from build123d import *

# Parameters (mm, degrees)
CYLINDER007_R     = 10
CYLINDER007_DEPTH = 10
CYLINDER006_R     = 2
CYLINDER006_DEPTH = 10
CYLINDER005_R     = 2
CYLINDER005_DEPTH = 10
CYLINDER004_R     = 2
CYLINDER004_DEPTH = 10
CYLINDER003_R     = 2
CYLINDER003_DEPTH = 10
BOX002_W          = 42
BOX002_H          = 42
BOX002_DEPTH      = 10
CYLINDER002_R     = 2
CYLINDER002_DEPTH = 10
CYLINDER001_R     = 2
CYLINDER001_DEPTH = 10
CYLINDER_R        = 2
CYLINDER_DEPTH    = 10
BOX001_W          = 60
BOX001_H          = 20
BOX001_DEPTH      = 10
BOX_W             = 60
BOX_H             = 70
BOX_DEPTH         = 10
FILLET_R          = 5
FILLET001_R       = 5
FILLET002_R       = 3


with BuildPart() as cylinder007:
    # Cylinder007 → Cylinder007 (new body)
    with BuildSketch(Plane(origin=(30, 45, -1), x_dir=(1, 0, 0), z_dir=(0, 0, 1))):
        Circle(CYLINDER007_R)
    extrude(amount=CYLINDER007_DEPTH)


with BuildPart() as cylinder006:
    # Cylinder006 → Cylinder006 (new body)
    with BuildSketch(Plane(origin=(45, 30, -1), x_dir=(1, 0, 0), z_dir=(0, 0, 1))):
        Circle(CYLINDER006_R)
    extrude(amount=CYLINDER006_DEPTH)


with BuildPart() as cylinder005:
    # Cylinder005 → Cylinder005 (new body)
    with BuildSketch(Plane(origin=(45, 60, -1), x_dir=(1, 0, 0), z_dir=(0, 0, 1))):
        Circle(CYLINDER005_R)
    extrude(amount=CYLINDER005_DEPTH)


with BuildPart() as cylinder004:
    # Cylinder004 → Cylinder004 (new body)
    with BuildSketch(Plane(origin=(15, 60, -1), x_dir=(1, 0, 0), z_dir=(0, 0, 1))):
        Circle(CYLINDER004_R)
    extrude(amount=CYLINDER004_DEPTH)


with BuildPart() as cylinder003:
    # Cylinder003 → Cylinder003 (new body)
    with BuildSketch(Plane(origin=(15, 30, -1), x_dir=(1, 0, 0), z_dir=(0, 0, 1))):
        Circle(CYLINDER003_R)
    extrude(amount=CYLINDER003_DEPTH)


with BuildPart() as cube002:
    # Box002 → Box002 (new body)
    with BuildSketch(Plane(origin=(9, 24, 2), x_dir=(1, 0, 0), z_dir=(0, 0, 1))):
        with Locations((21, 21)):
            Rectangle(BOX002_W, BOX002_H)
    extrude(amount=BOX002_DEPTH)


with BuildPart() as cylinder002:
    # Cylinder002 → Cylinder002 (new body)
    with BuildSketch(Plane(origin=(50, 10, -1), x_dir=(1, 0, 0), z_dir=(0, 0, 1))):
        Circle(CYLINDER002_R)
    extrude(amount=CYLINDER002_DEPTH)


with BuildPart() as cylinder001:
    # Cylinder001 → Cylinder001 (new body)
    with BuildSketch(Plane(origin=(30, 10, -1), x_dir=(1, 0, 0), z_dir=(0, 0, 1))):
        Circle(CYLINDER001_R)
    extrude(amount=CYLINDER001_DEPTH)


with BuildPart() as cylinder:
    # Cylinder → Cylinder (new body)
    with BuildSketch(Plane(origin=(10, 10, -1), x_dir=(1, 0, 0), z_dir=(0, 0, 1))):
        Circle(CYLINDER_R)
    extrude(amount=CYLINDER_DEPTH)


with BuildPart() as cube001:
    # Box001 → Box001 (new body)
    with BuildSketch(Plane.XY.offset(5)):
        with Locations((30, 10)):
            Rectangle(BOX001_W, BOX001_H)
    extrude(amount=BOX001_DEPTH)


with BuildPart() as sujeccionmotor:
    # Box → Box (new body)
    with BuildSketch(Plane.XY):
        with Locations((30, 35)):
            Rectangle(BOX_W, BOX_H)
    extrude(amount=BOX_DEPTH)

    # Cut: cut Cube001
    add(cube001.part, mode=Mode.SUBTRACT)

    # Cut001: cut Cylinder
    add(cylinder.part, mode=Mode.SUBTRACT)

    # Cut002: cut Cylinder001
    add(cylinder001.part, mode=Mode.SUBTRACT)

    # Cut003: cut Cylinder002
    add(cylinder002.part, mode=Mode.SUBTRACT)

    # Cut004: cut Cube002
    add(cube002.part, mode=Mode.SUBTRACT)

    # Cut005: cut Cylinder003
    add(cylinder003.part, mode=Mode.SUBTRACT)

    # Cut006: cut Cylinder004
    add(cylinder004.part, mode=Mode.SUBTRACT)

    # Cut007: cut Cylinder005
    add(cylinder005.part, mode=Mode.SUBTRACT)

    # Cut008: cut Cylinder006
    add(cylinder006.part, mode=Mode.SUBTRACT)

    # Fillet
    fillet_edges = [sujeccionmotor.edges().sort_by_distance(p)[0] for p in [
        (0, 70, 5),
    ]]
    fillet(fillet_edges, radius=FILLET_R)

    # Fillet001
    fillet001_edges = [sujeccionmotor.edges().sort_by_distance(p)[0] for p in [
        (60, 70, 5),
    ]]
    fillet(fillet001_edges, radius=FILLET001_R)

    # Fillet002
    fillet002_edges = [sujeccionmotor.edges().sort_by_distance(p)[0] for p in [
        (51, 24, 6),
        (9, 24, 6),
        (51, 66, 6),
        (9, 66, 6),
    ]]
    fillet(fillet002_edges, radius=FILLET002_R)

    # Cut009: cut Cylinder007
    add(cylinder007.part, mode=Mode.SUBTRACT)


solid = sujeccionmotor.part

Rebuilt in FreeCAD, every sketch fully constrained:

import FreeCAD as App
import Part
import Sketcher

V = App.Vector


def edges_at(feature, points):
    """Names of the edges that pass closest to the given points."""
    edges = feature.Shape.Edges
    near = lambda p: min(range(len(edges)), key=lambda i: edges[i].distToShape(Part.Vertex(*p))[0])
    return sorted({f"Edge{near(p) + 1}" for p in points})

doc = App.newDocument("Part")
body = doc.addObject("PartDesign::Body", "Body")

sketch1 = body.newObject("Sketcher::SketchObject", "Sketch")
sketch1.AttachmentSupport = (doc.getObject("XY_Plane"), [""])
sketch1.MapMode = "FlatFace"
sketch1.AttachmentOffset = App.Placement(V(0, 0, -1), App.Rotation())
sketch1.addGeometry(Part.Circle(V(30, 45, 0), V(0, 0, 1), 10), False)
sketch1.addConstraint([
    Sketcher.Constraint("Diameter", 0, 20.0),
    Sketcher.Constraint("DistanceX", -1, 1, 0, 3, 30.0),
    Sketcher.Constraint("DistanceY", -1, 1, 0, 3, 45.0),
])
pad1 = body.newObject("PartDesign::Pad", "Pad")
pad1.Profile = sketch1
pad1.Length = 10
body2 = doc.addObject("PartDesign::Body", "Body001")

sketch2 = body2.newObject("Sketcher::SketchObject", "Sketch001")
sketch2.AttachmentSupport = (doc.getObject("XY_Plane001"), [""])
sketch2.MapMode = "FlatFace"
sketch2.AttachmentOffset = App.Placement(V(0, 0, -1), App.Rotation())
sketch2.addGeometry(Part.Circle(V(45, 30, 0), V(0, 0, 1), 2), False)
sketch2.addConstraint([
    Sketcher.Constraint("Diameter", 0, 4.0),
    Sketcher.Constraint("DistanceX", -1, 1, 0, 3, 45.0),
    Sketcher.Constraint("DistanceY", -1, 1, 0, 3, 30.0),
])
pad2 = body2.newObject("PartDesign::Pad", "Pad001")
pad2.Profile = sketch2
pad2.Length = 10
body3 = doc.addObject("PartDesign::Body", "Body002")

sketch3 = body3.newObject("Sketcher::SketchObject", "Sketch002")
sketch3.AttachmentSupport = (doc.getObject("XY_Plane002"), [""])
sketch3.MapMode = "FlatFace"
sketch3.AttachmentOffset = App.Placement(V(0, 0, -1), App.Rotation())
sketch3.addGeometry(Part.Circle(V(45, 60, 0), V(0, 0, 1), 2), False)
sketch3.addConstraint([
    Sketcher.Constraint("Diameter", 0, 4.0),
    Sketcher.Constraint("DistanceX", -1, 1, 0, 3, 45.0),
    Sketcher.Constraint("DistanceY", -1, 1, 0, 3, 60.0),
])
pad3 = body3.newObject("PartDesign::Pad", "Pad002")
pad3.Profile = sketch3
pad3.Length = 10
body4 = doc.addObject("PartDesign::Body", "Body003")

sketch4 = body4.newObject("Sketcher::SketchObject", "Sketch003")
sketch4.AttachmentSupport = (doc.getObject("XY_Plane003"), [""])
sketch4.MapMode = "FlatFace"
sketch4.AttachmentOffset = App.Placement(V(0, 0, -1), App.Rotation())
sketch4.addGeometry(Part.Circle(V(15, 60, 0), V(0, 0, 1), 2), False)
sketch4.addConstraint([
    Sketcher.Constraint("Diameter", 0, 4.0),
    Sketcher.Constraint("DistanceX", -1, 1, 0, 3, 15.0),
    Sketcher.Constraint("DistanceY", -1, 1, 0, 3, 60.0),
])
pad4 = body4.newObject("PartDesign::Pad", "Pad003")
pad4.Profile = sketch4
pad4.Length = 10
body5 = doc.addObject("PartDesign::Body", "Body004")

sketch5 = body5.newObject("Sketcher::SketchObject", "Sketch004")
sketch5.AttachmentSupport = (doc.getObject("XY_Plane004"), [""])
sketch5.MapMode = "FlatFace"
sketch5.AttachmentOffset = App.Placement(V(0, 0, -1), App.Rotation())
sketch5.addGeometry(Part.Circle(V(15, 30, 0), V(0, 0, 1), 2), False)
sketch5.addConstraint([
    Sketcher.Constraint("Diameter", 0, 4.0),
    Sketcher.Constraint("DistanceX", -1, 1, 0, 3, 15.0),
    Sketcher.Constraint("DistanceY", -1, 1, 0, 3, 30.0),
])
pad5 = body5.newObject("PartDesign::Pad", "Pad004")
pad5.Profile = sketch5
pad5.Length = 10
body6 = doc.addObject("PartDesign::Body", "Body005")

sketch6 = body6.newObject("Sketcher::SketchObject", "Sketch005")
sketch6.AttachmentSupport = (doc.getObject("XY_Plane005"), [""])
sketch6.MapMode = "FlatFace"
sketch6.AttachmentOffset = App.Placement(V(0, 0, 2), App.Rotation())
sketch6.addGeometry([
    Part.LineSegment(V(9, 66, 0), V(9, 24, 0)),
    Part.LineSegment(V(9, 24, 0), V(51, 24, 0)),
    Part.LineSegment(V(51, 24, 0), V(51, 66, 0)),
    Part.LineSegment(V(51, 66, 0), V(9, 66, 0)),
], False)
sketch6.addConstraint([
    Sketcher.Constraint("Coincident", 0, 2, 1, 1),
    Sketcher.Constraint("Coincident", 1, 2, 2, 1),
    Sketcher.Constraint("Coincident", 2, 2, 3, 1),
    Sketcher.Constraint("Coincident", 3, 2, 0, 1),
    Sketcher.Constraint("Vertical", 0),
    Sketcher.Constraint("Horizontal", 1),
    Sketcher.Constraint("Vertical", 2),
    Sketcher.Constraint("Horizontal", 3),
    Sketcher.Constraint("Equal", 3, 0),
    Sketcher.Constraint("DistanceX", 1, 1, 1, 2, 42.0),
    Sketcher.Constraint("DistanceX", -1, 1, 0, 2, 9.0),
    Sketcher.Constraint("DistanceY", -1, 1, 0, 2, 24.0),
])
pad6 = body6.newObject("PartDesign::Pad", "Pad005")
pad6.Profile = sketch6
pad6.Length = 10
body7 = doc.addObject("PartDesign::Body", "Body006")

sketch7 = body7.newObject("Sketcher::SketchObject", "Sketch006")
sketch7.AttachmentSupport = (doc.getObject("XY_Plane006"), [""])
sketch7.MapMode = "FlatFace"
sketch7.AttachmentOffset = App.Placement(V(0, 0, -1), App.Rotation())
sketch7.addGeometry(Part.Circle(V(50, 10, 0), V(0, 0, 1), 2), False)
sketch7.addConstraint([
    Sketcher.Constraint("Diameter", 0, 4.0),
    Sketcher.Constraint("DistanceX", -1, 1, 0, 3, 50.0),
    Sketcher.Constraint("DistanceY", -1, 1, 0, 3, 10.0),
])
pad7 = body7.newObject("PartDesign::Pad", "Pad006")
pad7.Profile = sketch7
pad7.Length = 10
body8 = doc.addObject("PartDesign::Body", "Body007")

sketch8 = body8.newObject("Sketcher::SketchObject", "Sketch007")
sketch8.AttachmentSupport = (doc.getObject("XY_Plane007"), [""])
sketch8.MapMode = "FlatFace"
sketch8.AttachmentOffset = App.Placement(V(0, 0, -1), App.Rotation())
sketch8.addGeometry(Part.Circle(V(30, 10, 0), V(0, 0, 1), 2), False)
sketch8.addConstraint([
    Sketcher.Constraint("Diameter", 0, 4.0),
    Sketcher.Constraint("DistanceX", -1, 1, 0, 3, 30.0),
    Sketcher.Constraint("DistanceY", -1, 1, 0, 3, 10.0),
])
pad8 = body8.newObject("PartDesign::Pad", "Pad007")
pad8.Profile = sketch8
pad8.Length = 10
body9 = doc.addObject("PartDesign::Body", "Body008")

sketch9 = body9.newObject("Sketcher::SketchObject", "Sketch008")
sketch9.AttachmentSupport = (doc.getObject("XY_Plane008"), [""])
sketch9.MapMode = "FlatFace"
sketch9.AttachmentOffset = App.Placement(V(0, 0, -1), App.Rotation())
sketch9.addGeometry(Part.Circle(V(10, 10, 0), V(0, 0, 1), 2), False)
sketch9.addConstraint([
    Sketcher.Constraint("Diameter", 0, 4.0),
    Sketcher.Constraint("DistanceX", -1, 1, 0, 3, 10.0),
    Sketcher.Constraint("DistanceY", -1, 1, 0, 3, 10.0),
])
pad9 = body9.newObject("PartDesign::Pad", "Pad008")
pad9.Profile = sketch9
pad9.Length = 10
body10 = doc.addObject("PartDesign::Body", "Body009")

sketch10 = body10.newObject("Sketcher::SketchObject", "Sketch009")
sketch10.AttachmentSupport = (doc.getObject("XY_Plane009"), [""])
sketch10.MapMode = "FlatFace"
sketch10.AttachmentOffset = App.Placement(V(0, 0, 5), App.Rotation())
sketch10.addGeometry([
    Part.LineSegment(V(0, 20, 0), V(0, 0, 0)),
    Part.LineSegment(V(0, 0, 0), V(60, 0, 0)),
    Part.LineSegment(V(60, 0, 0), V(60, 20, 0)),
    Part.LineSegment(V(60, 20, 0), V(0, 20, 0)),
], False)
sketch10.addConstraint([
    Sketcher.Constraint("Coincident", 0, 2, 1, 1),
    Sketcher.Constraint("Coincident", 1, 2, 2, 1),
    Sketcher.Constraint("Coincident", 2, 2, 3, 1),
    Sketcher.Constraint("Coincident", 3, 2, 0, 1),
    Sketcher.Constraint("Vertical", 0),
    Sketcher.Constraint("Horizontal", 1),
    Sketcher.Constraint("Vertical", 2),
    Sketcher.Constraint("Horizontal", 3),
    Sketcher.Constraint("Coincident", 0, 2, -1, 1),
    Sketcher.Constraint("DistanceX", 1, 1, 1, 2, 60.0),
    Sketcher.Constraint("DistanceY", 0, 2, 0, 1, 20.0),
])
pad10 = body10.newObject("PartDesign::Pad", "Pad009")
pad10.Profile = sketch10
pad10.Length = 10
body11 = doc.addObject("PartDesign::Body", "Body010")

sketch11 = body11.newObject("Sketcher::SketchObject", "Sketch010")
sketch11.AttachmentSupport = (doc.getObject("XY_Plane010"), [""])
sketch11.MapMode = "FlatFace"
sketch11.addGeometry([
    Part.LineSegment(V(0, 70, 0), V(0, 0, 0)),
    Part.LineSegment(V(0, 0, 0), V(60, 0, 0)),
    Part.LineSegment(V(60, 0, 0), V(60, 70, 0)),
    Part.LineSegment(V(60, 70, 0), V(0, 70, 0)),
], False)
sketch11.addConstraint([
    Sketcher.Constraint("Coincident", 0, 2, 1, 1),
    Sketcher.Constraint("Coincident", 1, 2, 2, 1),
    Sketcher.Constraint("Coincident", 2, 2, 3, 1),
    Sketcher.Constraint("Coincident", 3, 2, 0, 1),
    Sketcher.Constraint("Vertical", 0),
    Sketcher.Constraint("Horizontal", 1),
    Sketcher.Constraint("Vertical", 2),
    Sketcher.Constraint("Horizontal", 3),
    Sketcher.Constraint("Coincident", 0, 2, -1, 1),
    Sketcher.Constraint("DistanceX", 1, 1, 1, 2, 60.0),
    Sketcher.Constraint("DistanceY", 0, 2, 0, 1, 70.0),
])
pad11 = body11.newObject("PartDesign::Pad", "Pad010")
pad11.Profile = sketch11
pad11.Length = 10
doc.recompute()

boolean = body11.newObject("PartDesign::Boolean", "Boolean")
boolean.Type = "Cut"
boolean.addObjects([body10])
doc.recompute()

boolean2 = body11.newObject("PartDesign::Boolean", "Boolean001")
boolean2.Type = "Cut"
boolean2.addObjects([body9])
doc.recompute()

boolean3 = body11.newObject("PartDesign::Boolean", "Boolean002")
boolean3.Type = "Cut"
boolean3.addObjects([body8])
doc.recompute()

boolean4 = body11.newObject("PartDesign::Boolean", "Boolean003")
boolean4.Type = "Cut"
boolean4.addObjects([body7])
doc.recompute()

boolean5 = body11.newObject("PartDesign::Boolean", "Boolean004")
boolean5.Type = "Cut"
boolean5.addObjects([body6])
doc.recompute()

boolean6 = body11.newObject("PartDesign::Boolean", "Boolean005")
boolean6.Type = "Cut"
boolean6.addObjects([body5])
doc.recompute()

boolean7 = body11.newObject("PartDesign::Boolean", "Boolean006")
boolean7.Type = "Cut"
boolean7.addObjects([body4])
doc.recompute()

boolean8 = body11.newObject("PartDesign::Boolean", "Boolean007")
boolean8.Type = "Cut"
boolean8.addObjects([body3])
doc.recompute()

boolean9 = body11.newObject("PartDesign::Boolean", "Boolean008")
boolean9.Type = "Cut"
boolean9.addObjects([body2])
doc.recompute()

fillet = body11.newObject("PartDesign::Fillet", "Fillet")
fillet.Base = (boolean9, edges_at(boolean9, [(0, 70, 5)]))
fillet.Radius = 5
doc.recompute()

fillet2 = body11.newObject("PartDesign::Fillet", "Fillet001")
fillet2.Base = (fillet, edges_at(fillet, [(60, 70, 5)]))
fillet2.Radius = 5
doc.recompute()

fillet3 = body11.newObject("PartDesign::Fillet", "Fillet002")
fillet3.Base = (fillet2, edges_at(fillet2, [
    (51, 24, 6),
    (9, 24, 6),
    (51, 66, 6),
    (9, 66, 6),
]))
fillet3.Radius = 3
doc.recompute()

boolean10 = body11.newObject("PartDesign::Boolean", "Boolean009")
boolean10.Type = "Cut"
boolean10.addObjects([body])

doc.recompute()
